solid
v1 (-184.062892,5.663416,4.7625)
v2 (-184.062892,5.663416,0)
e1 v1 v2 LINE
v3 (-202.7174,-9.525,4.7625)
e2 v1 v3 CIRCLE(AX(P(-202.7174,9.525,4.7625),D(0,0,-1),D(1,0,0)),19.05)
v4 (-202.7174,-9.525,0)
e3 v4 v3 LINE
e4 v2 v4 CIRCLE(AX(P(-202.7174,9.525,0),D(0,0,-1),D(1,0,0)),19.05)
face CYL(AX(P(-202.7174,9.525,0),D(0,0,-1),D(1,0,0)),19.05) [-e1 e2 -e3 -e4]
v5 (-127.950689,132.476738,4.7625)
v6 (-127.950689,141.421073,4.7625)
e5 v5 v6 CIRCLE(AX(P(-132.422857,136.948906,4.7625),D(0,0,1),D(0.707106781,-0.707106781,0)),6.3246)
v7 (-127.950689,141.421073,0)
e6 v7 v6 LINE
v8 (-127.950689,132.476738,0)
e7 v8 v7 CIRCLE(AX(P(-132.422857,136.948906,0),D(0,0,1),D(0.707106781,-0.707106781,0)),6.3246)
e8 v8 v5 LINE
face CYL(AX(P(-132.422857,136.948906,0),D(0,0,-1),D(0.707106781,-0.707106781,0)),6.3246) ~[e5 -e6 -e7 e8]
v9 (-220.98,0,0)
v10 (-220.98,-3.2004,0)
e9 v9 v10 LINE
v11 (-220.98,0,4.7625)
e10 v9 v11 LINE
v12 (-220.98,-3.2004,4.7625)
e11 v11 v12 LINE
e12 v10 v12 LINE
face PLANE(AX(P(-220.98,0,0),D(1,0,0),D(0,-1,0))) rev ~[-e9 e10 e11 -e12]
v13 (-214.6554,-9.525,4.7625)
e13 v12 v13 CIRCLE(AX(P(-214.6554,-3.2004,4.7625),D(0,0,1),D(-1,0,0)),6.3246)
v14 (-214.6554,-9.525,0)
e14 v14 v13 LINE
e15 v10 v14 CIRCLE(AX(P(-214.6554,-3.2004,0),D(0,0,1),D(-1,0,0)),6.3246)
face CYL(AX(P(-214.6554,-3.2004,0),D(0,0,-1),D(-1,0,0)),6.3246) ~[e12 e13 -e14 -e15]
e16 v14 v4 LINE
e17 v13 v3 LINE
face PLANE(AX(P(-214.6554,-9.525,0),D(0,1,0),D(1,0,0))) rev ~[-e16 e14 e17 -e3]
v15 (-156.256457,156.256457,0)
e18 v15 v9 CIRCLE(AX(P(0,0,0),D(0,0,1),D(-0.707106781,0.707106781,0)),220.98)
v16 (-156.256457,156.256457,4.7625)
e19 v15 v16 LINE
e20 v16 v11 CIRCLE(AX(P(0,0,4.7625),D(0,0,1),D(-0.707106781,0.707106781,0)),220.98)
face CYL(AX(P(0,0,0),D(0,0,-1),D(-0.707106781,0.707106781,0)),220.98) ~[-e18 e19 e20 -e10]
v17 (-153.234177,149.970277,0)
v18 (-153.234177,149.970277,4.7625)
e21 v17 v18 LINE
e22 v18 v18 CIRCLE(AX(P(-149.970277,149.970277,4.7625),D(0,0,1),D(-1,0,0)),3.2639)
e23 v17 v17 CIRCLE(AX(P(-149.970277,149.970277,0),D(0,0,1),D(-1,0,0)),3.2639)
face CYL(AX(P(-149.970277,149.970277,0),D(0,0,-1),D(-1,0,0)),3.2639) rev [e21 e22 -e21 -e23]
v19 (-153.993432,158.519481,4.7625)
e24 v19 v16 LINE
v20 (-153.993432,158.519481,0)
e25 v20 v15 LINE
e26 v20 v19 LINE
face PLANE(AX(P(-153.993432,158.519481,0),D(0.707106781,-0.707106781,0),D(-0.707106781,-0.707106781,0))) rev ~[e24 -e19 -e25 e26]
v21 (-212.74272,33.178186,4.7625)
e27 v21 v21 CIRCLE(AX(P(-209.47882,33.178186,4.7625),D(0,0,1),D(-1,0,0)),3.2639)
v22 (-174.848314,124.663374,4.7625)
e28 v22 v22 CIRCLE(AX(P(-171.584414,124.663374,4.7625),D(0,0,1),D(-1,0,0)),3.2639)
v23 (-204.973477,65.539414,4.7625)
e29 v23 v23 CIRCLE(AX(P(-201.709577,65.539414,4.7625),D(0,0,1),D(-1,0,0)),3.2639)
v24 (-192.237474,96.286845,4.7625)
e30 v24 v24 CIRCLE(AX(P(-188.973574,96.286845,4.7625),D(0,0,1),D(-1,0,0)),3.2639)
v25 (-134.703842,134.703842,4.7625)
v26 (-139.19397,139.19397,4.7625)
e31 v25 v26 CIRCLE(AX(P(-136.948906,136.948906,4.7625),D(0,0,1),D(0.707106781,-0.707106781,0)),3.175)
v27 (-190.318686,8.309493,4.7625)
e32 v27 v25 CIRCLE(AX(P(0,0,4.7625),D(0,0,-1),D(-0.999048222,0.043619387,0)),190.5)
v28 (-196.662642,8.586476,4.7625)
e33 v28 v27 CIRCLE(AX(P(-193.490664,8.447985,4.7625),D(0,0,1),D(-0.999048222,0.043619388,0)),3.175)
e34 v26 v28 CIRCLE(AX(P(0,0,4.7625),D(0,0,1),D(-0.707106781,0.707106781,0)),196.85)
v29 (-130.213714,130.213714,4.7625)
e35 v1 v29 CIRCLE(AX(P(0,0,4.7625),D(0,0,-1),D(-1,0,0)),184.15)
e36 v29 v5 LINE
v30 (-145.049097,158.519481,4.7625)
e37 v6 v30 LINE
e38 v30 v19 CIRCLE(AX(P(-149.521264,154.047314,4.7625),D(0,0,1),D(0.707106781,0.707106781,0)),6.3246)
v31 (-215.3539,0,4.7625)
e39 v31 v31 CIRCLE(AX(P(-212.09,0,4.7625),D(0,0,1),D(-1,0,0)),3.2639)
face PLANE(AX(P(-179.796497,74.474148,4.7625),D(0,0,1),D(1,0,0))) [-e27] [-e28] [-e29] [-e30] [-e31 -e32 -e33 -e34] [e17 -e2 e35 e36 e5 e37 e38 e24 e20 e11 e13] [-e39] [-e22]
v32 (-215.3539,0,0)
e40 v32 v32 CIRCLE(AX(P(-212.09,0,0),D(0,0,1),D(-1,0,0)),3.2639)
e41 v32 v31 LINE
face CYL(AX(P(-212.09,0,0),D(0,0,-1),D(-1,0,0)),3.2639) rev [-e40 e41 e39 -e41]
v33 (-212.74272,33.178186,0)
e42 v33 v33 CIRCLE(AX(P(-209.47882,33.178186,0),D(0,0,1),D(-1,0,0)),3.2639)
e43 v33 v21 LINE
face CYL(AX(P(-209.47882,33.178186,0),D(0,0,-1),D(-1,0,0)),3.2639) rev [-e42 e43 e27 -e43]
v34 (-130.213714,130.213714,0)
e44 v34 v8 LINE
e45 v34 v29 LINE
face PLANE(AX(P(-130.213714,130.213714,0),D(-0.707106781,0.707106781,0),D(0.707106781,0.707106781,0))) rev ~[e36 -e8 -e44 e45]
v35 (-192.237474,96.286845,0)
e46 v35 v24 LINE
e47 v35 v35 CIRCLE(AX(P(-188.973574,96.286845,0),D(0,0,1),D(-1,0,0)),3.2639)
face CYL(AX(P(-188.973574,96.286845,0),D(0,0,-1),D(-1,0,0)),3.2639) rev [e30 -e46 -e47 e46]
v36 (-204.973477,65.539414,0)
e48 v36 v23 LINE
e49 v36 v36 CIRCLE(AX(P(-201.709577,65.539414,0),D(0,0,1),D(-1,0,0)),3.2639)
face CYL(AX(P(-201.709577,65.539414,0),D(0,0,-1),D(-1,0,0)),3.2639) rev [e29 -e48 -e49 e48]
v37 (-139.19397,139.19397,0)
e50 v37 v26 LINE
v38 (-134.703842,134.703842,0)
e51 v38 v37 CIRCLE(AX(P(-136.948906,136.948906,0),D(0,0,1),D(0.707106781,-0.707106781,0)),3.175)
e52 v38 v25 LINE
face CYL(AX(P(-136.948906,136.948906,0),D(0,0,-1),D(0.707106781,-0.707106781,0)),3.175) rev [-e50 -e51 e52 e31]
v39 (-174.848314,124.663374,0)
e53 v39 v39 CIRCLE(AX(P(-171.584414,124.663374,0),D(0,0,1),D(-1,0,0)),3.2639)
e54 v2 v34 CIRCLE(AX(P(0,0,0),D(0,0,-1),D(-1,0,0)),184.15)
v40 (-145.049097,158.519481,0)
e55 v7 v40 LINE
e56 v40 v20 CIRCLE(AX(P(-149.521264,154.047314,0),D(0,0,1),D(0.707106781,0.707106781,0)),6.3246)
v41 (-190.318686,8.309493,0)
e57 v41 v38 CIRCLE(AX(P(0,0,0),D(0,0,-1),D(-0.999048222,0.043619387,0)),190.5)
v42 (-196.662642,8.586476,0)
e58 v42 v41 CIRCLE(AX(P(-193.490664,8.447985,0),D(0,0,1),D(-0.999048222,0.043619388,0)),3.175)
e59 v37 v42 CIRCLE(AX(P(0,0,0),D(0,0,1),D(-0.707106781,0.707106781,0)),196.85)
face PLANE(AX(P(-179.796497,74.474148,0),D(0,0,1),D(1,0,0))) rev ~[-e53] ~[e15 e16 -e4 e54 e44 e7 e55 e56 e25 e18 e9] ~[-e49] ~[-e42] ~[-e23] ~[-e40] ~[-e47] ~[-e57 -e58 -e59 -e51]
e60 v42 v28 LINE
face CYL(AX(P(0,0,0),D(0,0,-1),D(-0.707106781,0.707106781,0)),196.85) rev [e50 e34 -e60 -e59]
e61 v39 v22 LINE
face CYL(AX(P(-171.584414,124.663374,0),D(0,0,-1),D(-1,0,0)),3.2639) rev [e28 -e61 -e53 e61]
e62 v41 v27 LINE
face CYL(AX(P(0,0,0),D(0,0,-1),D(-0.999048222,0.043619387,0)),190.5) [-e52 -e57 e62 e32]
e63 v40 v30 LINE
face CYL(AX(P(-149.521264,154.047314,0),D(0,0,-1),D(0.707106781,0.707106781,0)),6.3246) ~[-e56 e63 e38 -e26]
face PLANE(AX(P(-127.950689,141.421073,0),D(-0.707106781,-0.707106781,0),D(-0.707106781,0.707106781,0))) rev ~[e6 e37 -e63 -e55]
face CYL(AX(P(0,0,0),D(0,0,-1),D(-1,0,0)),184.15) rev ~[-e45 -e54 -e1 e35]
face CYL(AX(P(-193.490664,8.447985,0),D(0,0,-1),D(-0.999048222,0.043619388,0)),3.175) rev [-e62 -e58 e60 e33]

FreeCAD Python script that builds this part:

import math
import FreeCAD as App
import Part
import Sketcher

V = App.Vector
Q = App.Units.Quantity

doc = App.newDocument("Part")
params = doc.addObject("Spreadsheet::Sheet", "Params")
for row, (alias, value) in enumerate([
    ("sketch1_radius", "8.7 in"),
    ("sketch1_radius2", "7.5 in"),
    ("sketch1_radius3", "7.25 in"),
    ("sketch1_radius4", "7.75 in"),
    ("sketch1_diameter", "0.257 in"),
    ("pad1_length", "0.1875 in"),
    ("sketch2_radius", "0.75 in"),
], start=1):
    params.set(f"A{row}", alias)
    params.set(f"B{row}", "=" + value)
    params.setAlias(f"B{row}", alias)

body = doc.addObject("PartDesign::Body", "Body")

sketch1 = body.newObject("Sketcher::SketchObject", "Sketch")
sketch1.AttachmentSupport = (doc.getObject("XY_Plane"), [""])
sketch1.MapMode = "FlatFace"
sketch1.addGeometry([
    Part.LineSegment(V(-221, 0, 0), V(-221, -3.2, 0)),
    Part.ArcOfCircle(Part.Circle(V(-214.7, -3.2, 0), V(0, 0, 1), 6.3), math.radians(-180), math.radians(-90)),
    Part.LineSegment(V(-214.7, -9.5, 0), V(-190.5, -9.5, 0)),
    Part.ArcOfCircle(Part.Circle(V(-190.5, -3.2, 0), V(0, 0, 1), 6.3), math.radians(-90), math.radians(0)),
    Part.LineSegment(V(-184.2, -3.2, 0), V(-184.2, 0, 0)),
    Part.ArcOfCircle(Part.Circle(V(0, 0, 0), V(0, 0, 1), 184.2), math.radians(135), math.radians(180)),
    Part.LineSegment(V(-130.2, 130.2, 0), V(-128, 132.5, 0)),
    Part.ArcOfCircle(Part.Circle(V(-132.4, 136.9, 0), V(0, 0, 1), 6.3), math.radians(-45), math.radians(45)),
    Part.LineSegment(V(-128, 141.4, 0), V(-145, 158.5, 0)),
    Part.ArcOfCircle(Part.Circle(V(-149.5, 154, 0), V(0, 0, 1), 6.3), math.radians(45), math.radians(135)),
    Part.LineSegment(V(-154, 158.5, 0), V(-156.3, 156.3, 0)),
    Part.ArcOfCircle(Part.Circle(V(0, 0, 0), V(0, 0, 1), 221), math.radians(135), math.radians(180)),
    Part.Circle(V(-212.1, 0, 0), V(0, 0, 1), 3.3),
    Part.Circle(V(-209.5, 33.2, 0), V(0, 0, 1), 3.3),
    Part.Circle(V(-201.7, 65.5, 0), V(0, 0, 1), 3.3),
    Part.ArcOfCircle(Part.Circle(V(0, 0, 0), V(0, 0, 1), 190.5), math.radians(135), math.radians(178)),
    Part.ArcOfCircle(Part.Circle(V(-193.5, 8.4, 0), V(0, 0, 1), 3.2), math.radians(177), math.radians(358)),
    Part.ArcOfCircle(Part.Circle(V(0, 0, 0), V(0, 0, 1), 196.8), math.radians(135), math.radians(178)),
    Part.ArcOfCircle(Part.Circle(V(-136.9, 136.9, 0), V(0, 0, 1), 3.2), math.radians(-45), math.radians(135)),
    Part.Circle(V(-189, 96.3, 0), V(0, 0, 1), 3.3),
    Part.Circle(V(-171.6, 124.7, 0), V(0, 0, 1), 3.3),
    Part.Circle(V(-150, 150, 0), V(0, 0, 1), 3.3),
], False)
sketch1.addConstraint([
    Sketcher.Constraint("Tangent", 0, 2, 1, 1),
    Sketcher.Constraint("Tangent", 1, 2, 2, 1),
    Sketcher.Constraint("Tangent", 2, 2, 3, 1),
    Sketcher.Constraint("Tangent", 3, 2, 4, 1),
    Sketcher.Constraint("Tangent", 4, 2, 5, 2),
    Sketcher.Constraint("Tangent", 5, 1, 6, 1),
    Sketcher.Constraint("Tangent", 6, 2, 7, 1),
    Sketcher.Constraint("Tangent", 7, 2, 8, 1),
    Sketcher.Constraint("Tangent", 8, 2, 9, 1),
    Sketcher.Constraint("Tangent", 9, 2, 10, 1),
    Sketcher.Constraint("Tangent", 10, 2, 11, 1),
    Sketcher.Constraint("Tangent", 11, 2, 0, 1),
    Sketcher.Constraint("Tangent", 15, 2, 16, 2),
    Sketcher.Constraint("Tangent", 16, 1, 17, 2),
    Sketcher.Constraint("Tangent", 17, 1, 18, 2),
    Sketcher.Constraint("Tangent", 18, 1, 15, 1),
    Sketcher.Constraint("Vertical", 0),
    Sketcher.Constraint("Horizontal", 2),
    Sketcher.Constraint("Vertical", 4),
    Sketcher.Constraint("Coincident", 5, 3, -1, 1),
    Sketcher.Constraint("Coincident", 11, 3, -1, 1),
    Sketcher.Constraint("Coincident", 15, 3, -1, 1),
    Sketcher.Constraint("Coincident", 17, 3, -1, 1),
    Sketcher.Constraint("Equal", 1, 3),
    Sketcher.Constraint("Equal", 3, 7),
    Sketcher.Constraint("Equal", 7, 9),
    Sketcher.Constraint("Equal", 12, 13),
    Sketcher.Constraint("Equal", 13, 14),
    Sketcher.Constraint("Equal", 14, 19),
    Sketcher.Constraint("Equal", 19, 20),
    Sketcher.Constraint("Equal", 20, 21),
    Sketcher.Constraint("PointOnObject", 12, 3, -1),
    Sketcher.Constraint("Perpendicular", 6, 8),
    Sketcher.Constraint("Perpendicular", 8, 10),
    Sketcher.Constraint("Horizontal", 7, 3, 18, 3),
    Sketcher.Constraint("Horizontal", 8, 2, 9, 2),
    Sketcher.Constraint("Radius", 11, Q("8.7 in")),
    Sketcher.Constraint("Radius", 15, Q("7.5 in")),
    Sketcher.Constraint("Radius", 5, Q("7.25 in")),
    Sketcher.Constraint("Radius", 17, Q("7.75 in")),
    Sketcher.Constraint("Diameter", 12, Q("0.257 in")),
    Sketcher.Constraint("Radius", 1, Q("0.249 in")),
    Sketcher.Constraint("DistanceX", 12, 3, 3, 2, Q("1.1 in")),
    Sketcher.Constraint("DistanceY", 0, 2, 0, 1, Q("0.126 in")),
    Sketcher.Constraint("Distance", 6, Q("0.126 in")),
    Sketcher.Constraint("DistanceY", 16, 3, 13, 3, Q("24.730201 mm")),
    Sketcher.Constraint("DistanceX", 20, 3, 5, 1, Q("41.370701 mm")),
    Sketcher.Constraint("DistanceX", 13, 3, -1, 1, Q("209.47882 mm")),
    Sketcher.Constraint("DistanceY", 13, 3, 7, 3, Q("103.77072 mm")),
    Sketcher.Constraint("DistanceY", 13, 3, 14, 3, Q("32.361229 mm")),
    Sketcher.Constraint("DistanceX", 14, 3, 7, 3, Q("69.28672 mm")),
    Sketcher.Constraint("DistanceY", 14, 3, 19, 3, Q("30.747431 mm")),
    Sketcher.Constraint("DistanceX", 19, 3, 9, 3, Q("39.452309 mm")),
    Sketcher.Constraint("DistanceY", 19, 3, 20, 3, Q("28.376529 mm")),
    Sketcher.Constraint("DistanceX", 21, 3, 18, 3, Q("13.021371 mm")),
    Sketcher.Constraint("DistanceY", 18, 3, 21, 3, Q("13.021371 mm")),
])
sketch1.setExpression("Constraints[36]", "Params.sketch1_radius")
sketch1.setExpression("Constraints[37]", "Params.sketch1_radius2")
sketch1.setExpression("Constraints[38]", "Params.sketch1_radius3")
sketch1.setExpression("Constraints[39]", "Params.sketch1_radius4")
sketch1.setExpression("Constraints[40]", "Params.sketch1_diameter")
pad1 = body.newObject("PartDesign::Pad", "Pad")
pad1.Profile = sketch1
pad1.setExpression("Length", "Params.pad1_length")

sketch2 = body.newObject("Sketcher::SketchObject", "Sketch001")
sketch2.AttachmentSupport = (doc.getObject("XY_Plane"), [""])
sketch2.MapMode = "FlatFace"
sketch2.addGeometry([
    Part.LineSegment(V(-203, -10, 0), V(-184, -10, 0)),
    Part.LineSegment(V(-184, -10, 0), V(-184, 10, 0)),
    Part.ArcOfCircle(Part.Circle(V(-203, 10, 0), V(0, 0, 1), 19), math.radians(-90), math.radians(0)),
], False)
sketch2.addConstraint([
    Sketcher.Constraint("Coincident", 0, 2, 1, 1),
    Sketcher.Constraint("Tangent", 1, 2, 2, 2),
    Sketcher.Constraint("Tangent", 2, 1, 0, 1),
    Sketcher.Constraint("Horizontal", 0),
    Sketcher.Constraint("Vertical", 1),
    Sketcher.Constraint("Radius", 2, Q("0.75 in")),
    Sketcher.Constraint("DistanceX", 2, 3, -1, 1, Q("7.981 in")),
    Sketcher.Constraint("DistanceY", -1, 1, 2, 3, Q("0.375 in")),
])
sketch2.setExpression("Constraints[5]", "Params.sketch2_radius")
pocket1 = body.newObject("PartDesign::Pocket", "Pocket")
pocket1.Profile = sketch2
pocket1.Type = "ThroughAll"
pocket1.Reversed = True

doc.recompute()
